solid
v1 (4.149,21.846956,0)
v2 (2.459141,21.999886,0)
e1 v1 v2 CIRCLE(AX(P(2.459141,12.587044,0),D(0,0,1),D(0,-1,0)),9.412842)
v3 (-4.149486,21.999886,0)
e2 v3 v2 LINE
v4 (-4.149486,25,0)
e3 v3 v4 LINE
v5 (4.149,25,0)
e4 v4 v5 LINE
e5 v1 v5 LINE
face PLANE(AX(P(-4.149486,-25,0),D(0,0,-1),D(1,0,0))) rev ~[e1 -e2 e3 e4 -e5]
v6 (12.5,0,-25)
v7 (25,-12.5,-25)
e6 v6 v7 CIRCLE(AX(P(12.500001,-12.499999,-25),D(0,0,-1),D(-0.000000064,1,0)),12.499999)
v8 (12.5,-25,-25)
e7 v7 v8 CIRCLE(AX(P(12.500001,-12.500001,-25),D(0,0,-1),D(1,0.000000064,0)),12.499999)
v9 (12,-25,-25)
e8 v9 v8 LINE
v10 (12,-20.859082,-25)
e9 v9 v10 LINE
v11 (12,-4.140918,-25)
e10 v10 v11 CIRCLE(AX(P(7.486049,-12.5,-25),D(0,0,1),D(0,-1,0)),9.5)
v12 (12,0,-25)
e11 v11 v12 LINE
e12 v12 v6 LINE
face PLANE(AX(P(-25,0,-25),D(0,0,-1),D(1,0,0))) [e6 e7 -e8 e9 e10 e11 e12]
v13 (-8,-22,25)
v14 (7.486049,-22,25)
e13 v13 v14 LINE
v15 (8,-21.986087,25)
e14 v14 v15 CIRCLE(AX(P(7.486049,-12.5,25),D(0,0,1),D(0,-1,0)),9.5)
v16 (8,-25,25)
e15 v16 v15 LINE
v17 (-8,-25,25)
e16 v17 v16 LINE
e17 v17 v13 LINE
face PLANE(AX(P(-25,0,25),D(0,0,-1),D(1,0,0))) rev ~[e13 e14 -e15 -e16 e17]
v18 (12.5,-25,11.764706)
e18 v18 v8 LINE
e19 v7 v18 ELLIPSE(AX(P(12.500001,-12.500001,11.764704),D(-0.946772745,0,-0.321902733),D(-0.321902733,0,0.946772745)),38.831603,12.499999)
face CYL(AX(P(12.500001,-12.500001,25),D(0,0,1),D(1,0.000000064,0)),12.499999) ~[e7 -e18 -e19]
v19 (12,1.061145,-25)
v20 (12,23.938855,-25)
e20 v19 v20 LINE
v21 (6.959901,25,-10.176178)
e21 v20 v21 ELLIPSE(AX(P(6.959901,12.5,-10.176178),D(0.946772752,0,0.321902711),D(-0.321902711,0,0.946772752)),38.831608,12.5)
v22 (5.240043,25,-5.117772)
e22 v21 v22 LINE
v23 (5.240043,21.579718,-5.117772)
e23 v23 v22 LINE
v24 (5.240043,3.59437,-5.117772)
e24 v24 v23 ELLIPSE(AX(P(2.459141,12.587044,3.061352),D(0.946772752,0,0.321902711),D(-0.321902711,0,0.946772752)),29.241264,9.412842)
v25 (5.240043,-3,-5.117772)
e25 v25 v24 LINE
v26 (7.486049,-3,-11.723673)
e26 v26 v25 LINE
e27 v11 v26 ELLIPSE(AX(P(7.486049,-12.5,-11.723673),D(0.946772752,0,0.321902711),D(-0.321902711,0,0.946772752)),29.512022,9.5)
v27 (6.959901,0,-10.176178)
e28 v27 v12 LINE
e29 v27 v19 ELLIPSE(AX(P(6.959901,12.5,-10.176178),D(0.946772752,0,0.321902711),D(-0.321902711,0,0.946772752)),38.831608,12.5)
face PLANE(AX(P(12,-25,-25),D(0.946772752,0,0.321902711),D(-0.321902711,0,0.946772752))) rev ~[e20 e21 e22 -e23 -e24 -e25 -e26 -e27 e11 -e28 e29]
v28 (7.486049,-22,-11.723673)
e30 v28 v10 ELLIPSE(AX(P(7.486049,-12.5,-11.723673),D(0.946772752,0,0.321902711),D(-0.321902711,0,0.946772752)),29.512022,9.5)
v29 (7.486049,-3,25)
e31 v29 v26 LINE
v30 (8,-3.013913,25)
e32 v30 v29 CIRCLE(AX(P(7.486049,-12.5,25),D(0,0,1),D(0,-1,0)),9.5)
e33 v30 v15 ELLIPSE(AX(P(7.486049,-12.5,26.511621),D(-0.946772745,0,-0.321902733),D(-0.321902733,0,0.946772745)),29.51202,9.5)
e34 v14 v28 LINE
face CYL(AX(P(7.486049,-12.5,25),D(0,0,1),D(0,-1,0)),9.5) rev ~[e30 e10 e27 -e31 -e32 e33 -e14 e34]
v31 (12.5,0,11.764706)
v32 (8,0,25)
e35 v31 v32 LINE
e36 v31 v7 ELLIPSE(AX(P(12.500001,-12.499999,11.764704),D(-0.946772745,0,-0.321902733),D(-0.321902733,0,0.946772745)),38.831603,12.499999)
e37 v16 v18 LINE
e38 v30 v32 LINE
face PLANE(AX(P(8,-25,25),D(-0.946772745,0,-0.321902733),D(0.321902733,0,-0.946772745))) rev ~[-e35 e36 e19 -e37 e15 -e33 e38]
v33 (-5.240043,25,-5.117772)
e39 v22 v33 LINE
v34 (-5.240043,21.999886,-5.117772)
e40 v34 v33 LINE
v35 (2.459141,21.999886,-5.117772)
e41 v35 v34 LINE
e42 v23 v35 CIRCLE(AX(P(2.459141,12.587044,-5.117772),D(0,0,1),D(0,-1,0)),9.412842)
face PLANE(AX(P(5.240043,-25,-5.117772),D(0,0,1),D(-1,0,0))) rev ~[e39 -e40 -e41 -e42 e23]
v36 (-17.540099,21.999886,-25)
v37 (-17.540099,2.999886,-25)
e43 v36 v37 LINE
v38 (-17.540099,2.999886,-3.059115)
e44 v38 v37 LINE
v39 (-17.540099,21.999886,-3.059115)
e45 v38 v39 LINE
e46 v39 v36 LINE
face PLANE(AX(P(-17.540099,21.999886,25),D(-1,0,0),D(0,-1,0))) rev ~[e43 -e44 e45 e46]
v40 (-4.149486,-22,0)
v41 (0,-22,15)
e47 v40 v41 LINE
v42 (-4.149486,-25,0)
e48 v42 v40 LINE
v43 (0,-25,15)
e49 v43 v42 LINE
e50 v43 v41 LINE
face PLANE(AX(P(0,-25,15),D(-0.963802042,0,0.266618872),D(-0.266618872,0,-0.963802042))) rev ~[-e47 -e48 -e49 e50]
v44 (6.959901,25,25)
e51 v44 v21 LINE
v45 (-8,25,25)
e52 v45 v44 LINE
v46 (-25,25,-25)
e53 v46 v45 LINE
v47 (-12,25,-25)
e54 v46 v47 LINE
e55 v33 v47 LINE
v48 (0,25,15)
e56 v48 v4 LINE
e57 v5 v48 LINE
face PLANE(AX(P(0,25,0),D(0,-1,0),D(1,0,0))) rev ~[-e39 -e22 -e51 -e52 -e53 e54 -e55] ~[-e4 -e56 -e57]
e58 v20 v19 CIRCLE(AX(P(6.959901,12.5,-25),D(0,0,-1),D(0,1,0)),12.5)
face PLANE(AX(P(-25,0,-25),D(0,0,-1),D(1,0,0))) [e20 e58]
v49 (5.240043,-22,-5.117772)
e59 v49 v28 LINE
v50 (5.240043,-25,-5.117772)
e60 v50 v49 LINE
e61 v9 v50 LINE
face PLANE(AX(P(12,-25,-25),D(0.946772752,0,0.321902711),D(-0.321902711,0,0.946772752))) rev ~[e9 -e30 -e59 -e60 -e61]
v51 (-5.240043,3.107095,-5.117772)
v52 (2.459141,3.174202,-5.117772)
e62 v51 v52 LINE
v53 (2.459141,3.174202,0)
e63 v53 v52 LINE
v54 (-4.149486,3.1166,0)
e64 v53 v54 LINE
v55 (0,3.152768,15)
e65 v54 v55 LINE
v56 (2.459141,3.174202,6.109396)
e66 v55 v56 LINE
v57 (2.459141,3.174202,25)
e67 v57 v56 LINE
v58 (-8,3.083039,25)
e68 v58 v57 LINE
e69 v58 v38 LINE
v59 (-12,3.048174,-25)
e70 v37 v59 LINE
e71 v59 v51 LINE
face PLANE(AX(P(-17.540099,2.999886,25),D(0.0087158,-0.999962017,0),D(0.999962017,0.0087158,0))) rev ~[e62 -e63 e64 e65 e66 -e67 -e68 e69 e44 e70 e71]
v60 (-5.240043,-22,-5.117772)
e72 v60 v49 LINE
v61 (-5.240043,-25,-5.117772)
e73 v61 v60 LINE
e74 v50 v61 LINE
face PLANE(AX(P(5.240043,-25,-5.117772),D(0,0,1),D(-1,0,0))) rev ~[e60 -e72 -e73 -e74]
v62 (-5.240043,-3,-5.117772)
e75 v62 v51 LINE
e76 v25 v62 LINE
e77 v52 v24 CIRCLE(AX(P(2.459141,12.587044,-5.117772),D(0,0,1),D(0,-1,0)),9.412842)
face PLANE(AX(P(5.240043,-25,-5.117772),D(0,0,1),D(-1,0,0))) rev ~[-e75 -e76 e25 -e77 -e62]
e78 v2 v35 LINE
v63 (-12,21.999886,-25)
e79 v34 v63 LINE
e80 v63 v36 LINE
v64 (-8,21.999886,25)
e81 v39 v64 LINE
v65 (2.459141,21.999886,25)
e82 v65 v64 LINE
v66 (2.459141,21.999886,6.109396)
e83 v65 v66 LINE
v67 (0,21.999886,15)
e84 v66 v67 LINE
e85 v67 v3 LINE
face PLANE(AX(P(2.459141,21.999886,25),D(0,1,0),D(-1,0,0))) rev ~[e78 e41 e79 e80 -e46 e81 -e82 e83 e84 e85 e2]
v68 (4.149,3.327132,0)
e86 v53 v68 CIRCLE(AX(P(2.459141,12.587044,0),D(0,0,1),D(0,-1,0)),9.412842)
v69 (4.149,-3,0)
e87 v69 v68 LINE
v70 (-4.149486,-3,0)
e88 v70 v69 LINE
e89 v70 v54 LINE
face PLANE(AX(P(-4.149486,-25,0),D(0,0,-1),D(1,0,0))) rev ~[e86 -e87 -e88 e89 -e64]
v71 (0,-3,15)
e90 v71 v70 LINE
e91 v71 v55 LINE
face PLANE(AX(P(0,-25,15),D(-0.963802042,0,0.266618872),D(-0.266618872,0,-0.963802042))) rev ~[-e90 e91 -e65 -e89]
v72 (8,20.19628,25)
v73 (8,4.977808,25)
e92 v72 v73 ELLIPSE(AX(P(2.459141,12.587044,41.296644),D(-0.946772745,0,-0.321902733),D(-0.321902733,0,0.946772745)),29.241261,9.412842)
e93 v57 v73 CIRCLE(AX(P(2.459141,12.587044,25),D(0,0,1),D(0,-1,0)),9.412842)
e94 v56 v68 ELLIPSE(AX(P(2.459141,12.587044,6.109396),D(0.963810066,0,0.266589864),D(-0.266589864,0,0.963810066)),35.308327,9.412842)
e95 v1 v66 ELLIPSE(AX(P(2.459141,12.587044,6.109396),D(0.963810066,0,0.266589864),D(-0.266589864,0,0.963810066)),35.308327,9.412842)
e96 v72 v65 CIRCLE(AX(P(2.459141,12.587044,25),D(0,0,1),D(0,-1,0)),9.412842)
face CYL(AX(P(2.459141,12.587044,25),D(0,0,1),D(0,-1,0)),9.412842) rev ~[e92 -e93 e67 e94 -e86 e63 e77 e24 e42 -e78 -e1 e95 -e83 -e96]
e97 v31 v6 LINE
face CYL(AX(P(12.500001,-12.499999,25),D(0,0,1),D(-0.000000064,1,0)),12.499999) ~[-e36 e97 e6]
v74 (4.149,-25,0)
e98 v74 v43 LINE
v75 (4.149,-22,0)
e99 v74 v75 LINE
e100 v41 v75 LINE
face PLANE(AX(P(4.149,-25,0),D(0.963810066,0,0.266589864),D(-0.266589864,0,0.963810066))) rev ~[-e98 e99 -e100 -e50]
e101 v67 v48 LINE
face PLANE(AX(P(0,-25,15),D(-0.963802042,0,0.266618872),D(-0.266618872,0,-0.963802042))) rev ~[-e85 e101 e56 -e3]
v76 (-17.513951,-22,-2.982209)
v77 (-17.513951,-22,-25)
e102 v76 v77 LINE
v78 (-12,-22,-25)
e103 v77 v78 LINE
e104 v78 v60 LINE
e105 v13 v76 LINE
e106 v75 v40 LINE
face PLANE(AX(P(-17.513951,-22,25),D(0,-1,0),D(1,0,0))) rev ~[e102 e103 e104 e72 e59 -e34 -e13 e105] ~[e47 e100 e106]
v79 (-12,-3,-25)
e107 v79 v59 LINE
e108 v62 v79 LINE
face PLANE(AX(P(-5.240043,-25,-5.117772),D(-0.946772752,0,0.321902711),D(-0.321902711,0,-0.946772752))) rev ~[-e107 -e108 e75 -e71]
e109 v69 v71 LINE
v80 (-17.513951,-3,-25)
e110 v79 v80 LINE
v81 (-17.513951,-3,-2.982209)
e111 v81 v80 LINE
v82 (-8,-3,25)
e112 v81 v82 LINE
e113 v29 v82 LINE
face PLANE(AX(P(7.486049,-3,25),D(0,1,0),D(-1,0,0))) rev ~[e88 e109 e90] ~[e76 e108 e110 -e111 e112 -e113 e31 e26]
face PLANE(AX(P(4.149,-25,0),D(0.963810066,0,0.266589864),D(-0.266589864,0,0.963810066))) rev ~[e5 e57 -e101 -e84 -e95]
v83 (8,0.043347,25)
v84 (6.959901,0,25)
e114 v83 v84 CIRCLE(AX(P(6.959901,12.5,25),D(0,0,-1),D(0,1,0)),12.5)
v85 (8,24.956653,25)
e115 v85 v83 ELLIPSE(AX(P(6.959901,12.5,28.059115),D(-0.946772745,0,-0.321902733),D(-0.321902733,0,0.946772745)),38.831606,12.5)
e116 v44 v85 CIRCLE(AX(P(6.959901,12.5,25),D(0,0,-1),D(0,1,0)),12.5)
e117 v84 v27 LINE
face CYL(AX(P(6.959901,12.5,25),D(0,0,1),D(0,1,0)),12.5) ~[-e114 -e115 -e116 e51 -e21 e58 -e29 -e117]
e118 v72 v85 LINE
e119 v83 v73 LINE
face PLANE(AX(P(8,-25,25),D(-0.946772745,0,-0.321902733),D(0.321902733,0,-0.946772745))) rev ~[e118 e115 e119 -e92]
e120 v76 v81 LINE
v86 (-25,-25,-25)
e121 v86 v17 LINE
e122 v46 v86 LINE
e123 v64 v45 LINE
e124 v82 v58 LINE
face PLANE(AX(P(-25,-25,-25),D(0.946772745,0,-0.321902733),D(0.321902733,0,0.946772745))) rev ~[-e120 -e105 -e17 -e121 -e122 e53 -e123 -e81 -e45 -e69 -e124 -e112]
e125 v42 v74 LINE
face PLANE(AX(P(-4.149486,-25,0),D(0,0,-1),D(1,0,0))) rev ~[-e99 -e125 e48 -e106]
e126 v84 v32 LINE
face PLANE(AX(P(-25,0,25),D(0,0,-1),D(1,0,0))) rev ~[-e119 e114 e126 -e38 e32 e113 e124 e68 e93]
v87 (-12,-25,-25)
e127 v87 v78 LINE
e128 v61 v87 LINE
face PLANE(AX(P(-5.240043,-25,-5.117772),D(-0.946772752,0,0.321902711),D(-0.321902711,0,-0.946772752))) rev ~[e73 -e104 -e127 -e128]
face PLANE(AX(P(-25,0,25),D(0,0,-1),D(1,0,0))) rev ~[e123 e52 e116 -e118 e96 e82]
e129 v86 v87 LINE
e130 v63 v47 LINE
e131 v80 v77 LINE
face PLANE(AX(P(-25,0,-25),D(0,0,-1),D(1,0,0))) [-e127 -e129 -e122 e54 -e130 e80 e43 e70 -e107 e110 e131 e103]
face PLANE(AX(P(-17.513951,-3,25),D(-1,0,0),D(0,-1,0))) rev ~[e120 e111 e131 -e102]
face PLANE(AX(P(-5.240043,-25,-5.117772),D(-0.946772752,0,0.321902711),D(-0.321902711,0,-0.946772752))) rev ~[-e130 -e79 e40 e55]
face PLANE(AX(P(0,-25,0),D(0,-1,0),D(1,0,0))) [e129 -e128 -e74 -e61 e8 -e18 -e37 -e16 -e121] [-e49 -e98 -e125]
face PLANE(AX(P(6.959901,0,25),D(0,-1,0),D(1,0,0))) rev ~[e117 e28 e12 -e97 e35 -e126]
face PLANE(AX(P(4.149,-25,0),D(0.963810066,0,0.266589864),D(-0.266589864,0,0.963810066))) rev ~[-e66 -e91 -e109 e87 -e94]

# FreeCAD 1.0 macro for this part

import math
import FreeCAD as App
import Part
import Sketcher

V = App.Vector
Q = App.Units.Quantity

doc = App.newDocument("Part")
body = doc.addObject("PartDesign::Body", "Body")

sketch1 = body.newObject("Sketcher::SketchObject", "Sketch")
sketch1.AttachmentSupport = (doc.getObject("XZ_Plane"), [""])
sketch1.MapMode = "FlatFace"
sketch1.addGeometry([
    Part.LineSegment(V(-25, 25, 0), V(-25, -25, 0)),
    Part.LineSegment(V(-25, -25, 0), V(25, -25, 0)),
    Part.LineSegment(V(25, -25, 0), V(25, 25, 0)),
    Part.LineSegment(V(25, 25, 0), V(-25, 25, 0)),
], False)
sketch1.addConstraint([
    Sketcher.Constraint("Coincident", 0, 2, 1, 1),
    Sketcher.Constraint("Coincident", 1, 2, 2, 1),
    Sketcher.Constraint("Coincident", 2, 2, 3, 1),
    Sketcher.Constraint("Coincident", 3, 2, 0, 1),
    Sketcher.Constraint("Vertical", 0),
    Sketcher.Constraint("Horizontal", 1),
    Sketcher.Constraint("Vertical", 2),
    Sketcher.Constraint("Horizontal", 3),
    Sketcher.Constraint("Symmetric", 0, 2, 2, 2, -1, 1),
    Sketcher.Constraint("Equal", 3, 0),
    Sketcher.Constraint("DistanceX", 1, 1, 1, 2, Q("50 mm")),
])
pad1 = body.newObject("PartDesign::Pad", "Pad")
pad1.Profile = sketch1
pad1.Length = 50
pad1.Midplane = True

sketch2 = body.newObject("Sketcher::SketchObject", "Sketch001")
sketch2.AttachmentSupport = (doc.getObject("XZ_Plane"), [""])
sketch2.MapMode = "FlatFace"
sketch2.AttachmentOffset = App.Placement(V(0, 0, 25), App.Rotation())
sketch2.addGeometry([
    Part.LineSegment(V(-8, 25, 0), V(-25, 25, 0)),
    Part.LineSegment(V(-25, 25, 0), V(-25, -25, 0)),
    Part.LineSegment(V(-25, -25, 0), V(-8, 25, 0)),
    Part.LineSegment(V(4, 0, 0), V(0, 15, 0)),
    Part.LineSegment(V(0, 15, 0), V(-4, 0, 0)),
    Part.LineSegment(V(-4, 0, 0), V(4, 0, 0)),
    Part.LineSegment(V(8, 25, 0), V(25, -25, 0)),
    Part.LineSegment(V(25, -25, 0), V(25, 25, 0)),
    Part.LineSegment(V(25, 25, 0), V(8, 25, 0)),
    Part.LineSegment(V(-5, -5, 0), V(-12, -25, 0)),
    Part.LineSegment(V(-12, -25, 0), V(12, -25, 0)),
    Part.LineSegment(V(12, -25, 0), V(5, -5, 0)),
    Part.LineSegment(V(5, -5, 0), V(-5, -5, 0)),
], False)
sketch2.addConstraint([
    Sketcher.Constraint("Coincident", 0, 2, 1, 1),
    Sketcher.Constraint("Coincident", 1, 2, 2, 1),
    Sketcher.Constraint("Coincident", 2, 2, 0, 1),
    Sketcher.Constraint("Coincident", 3, 2, 4, 1),
    Sketcher.Constraint("Coincident", 4, 2, 5, 1),
    Sketcher.Constraint("Coincident", 5, 2, 3, 1),
    Sketcher.Constraint("Coincident", 6, 2, 7, 1),
    Sketcher.Constraint("Coincident", 7, 2, 8, 1),
    Sketcher.Constraint("Coincident", 8, 2, 6, 1),
    Sketcher.Constraint("Coincident", 9, 2, 10, 1),
    Sketcher.Constraint("Coincident", 10, 2, 11, 1),
    Sketcher.Constraint("Coincident", 11, 2, 12, 1),
    Sketcher.Constraint("Coincident", 12, 2, 9, 1),
    Sketcher.Constraint("Horizontal", 0),
    Sketcher.Constraint("Vertical", 1),
    Sketcher.Constraint("Horizontal", 5),
    Sketcher.Constraint("Vertical", 7),
    Sketcher.Constraint("Horizontal", 8),
    Sketcher.Constraint("Horizontal", 10),
    Sketcher.Constraint("Horizontal", 12),
    Sketcher.Constraint("Symmetric", 0, 2, 6, 2, -1, 1),
    Sketcher.Constraint("Symmetric", 2, 2, 8, 2, -2),
    Sketcher.Constraint("PointOnObject", 3, 2, -2),
    Sketcher.Constraint("PointOnObject", 4, 2, -1),
    Sketcher.Constraint("Parallel", 2, 9),
    Sketcher.Constraint("Parallel", 6, 11),
    Sketcher.Constraint("Horizontal", 1, 2, 6, 2),
    Sketcher.Constraint("Horizontal", 6, 2, 9, 2),
    Sketcher.Constraint("DistanceX", 0, 2, 0, 1, Q("17 mm")),
    Sketcher.Constraint("DistanceX", 10, 1, 10, 2, Q("24 mm")),
    Sketcher.Constraint("DistanceY", 1, 2, 1, 1, Q("50 mm")),
    Sketcher.Constraint("Distance", 9, Q("21 mm")),
    Sketcher.Constraint("DistanceX", 0, 2, -1, 1, Q("25 mm")),
    Sketcher.Constraint("DistanceY", -1, 1, 3, 2, Q("15 mm")),
    Sketcher.Constraint("DistanceX", 9, 2, -1, 1, Q("12 mm")),
    Sketcher.Constraint("DistanceX", -1, 1, 5, 2, Q("4.149 mm")),
    Sketcher.Constraint("Distance", 4, Q("15.563362 mm")),
])
pocket1 = body.newObject("PartDesign::Pocket", "Pocket")
pocket1.Profile = sketch2
pocket1.Length = 50

sketch3 = body.newObject("Sketcher::SketchObject", "Sketch002")
sketch3.AttachmentSupport = (doc.getObject("XY_Plane"), [""])
sketch3.MapMode = "FlatFace"
sketch3.AttachmentOffset = App.Placement(V(0, 0, 25), App.Rotation())
sketch3.addGeometry([
    Part.LineSegment(V(25, 25, 0), V(7, 25, 0)),
    Part.ArcOfCircle(Part.Circle(V(7, 12, 0), V(0, 0, 1), 12), math.radians(-90), math.radians(90)),
    Part.LineSegment(V(7, 0, 0), V(12, 0, 0)),
    Part.ArcOfCircle(Part.Circle(V(13, -12, 0), V(0, 0, 1), 12), math.radians(0), math.radians(90)),
    Part.LineSegment(V(25, -12, 0), V(25, 25, 0)),
    Part.ArcOfCircle(Part.Circle(V(13, -13, 0), V(0, 0, 1), 12), math.radians(-90), math.radians(0)),
    Part.LineSegment(V(12, -25, 0), V(25, -25, 0)),
    Part.LineSegment(V(25, -25, 0), V(25, -12, 0)),
    Part.LineSegment(V(7, -3, 0), V(-18, -3, 0)),
    Part.LineSegment(V(-18, -3, 0), V(-18, -22, 0)),
    Part.LineSegment(V(-18, -22, 0), V(7, -22, 0)),
    Part.ArcOfCircle(Part.Circle(V(7, -12, 0), V(0, 0, 1), 10), math.radians(-90), math.radians(90)),
    Part.LineSegment(V(2, 22, 0), V(-18, 22, 0)),
    Part.LineSegment(V(-18, 22, 0), V(-18, 3, 0)),
    Part.LineSegment(V(-18, 3, 0), V(2, 3, 0)),
    Part.ArcOfCircle(Part.Circle(V(2, 13, 0), V(0, 0, 1), 9), math.radians(-90), math.radians(90)),
], False)
sketch3.addConstraint([
    Sketcher.Constraint("Tangent", 0, 2, 1, 2),
    Sketcher.Constraint("Tangent", 1, 1, 2, 1),
    Sketcher.Constraint("Tangent", 2, 2, 3, 2),
    Sketcher.Constraint("Tangent", 3, 1, 4, 1),
    Sketcher.Constraint("Coincident", 4, 2, 0, 1),
    Sketcher.Constraint("Tangent", 5, 1, 6, 1),
    Sketcher.Constraint("Coincident", 6, 2, 7, 1),
    Sketcher.Constraint("Tangent", 7, 2, 5, 2),
    Sketcher.Constraint("Coincident", 8, 2, 9, 1),
    Sketcher.Constraint("Coincident", 9, 2, 10, 1),
    Sketcher.Constraint("Tangent", 10, 2, 11, 1),
    Sketcher.Constraint("Tangent", 11, 2, 8, 1),
    Sketcher.Constraint("Coincident", 12, 2, 13, 1),
    Sketcher.Constraint("Coincident", 13, 2, 14, 1),
    Sketcher.Constraint("Coincident", 14, 2, 15, 1),
    Sketcher.Constraint("Tangent", 15, 2, 12, 1),
    Sketcher.Constraint("Horizontal", 0),
    Sketcher.Constraint("Horizontal", 2),
    Sketcher.Constraint("Vertical", 4),
    Sketcher.Constraint("Horizontal", 6),
    Sketcher.Constraint("Vertical", 7),
    Sketcher.Constraint("Horizontal", 8),
    Sketcher.Constraint("Vertical", 9),
    Sketcher.Constraint("Horizontal", 10),
    Sketcher.Constraint("Horizontal", 12),
    Sketcher.Constraint("Vertical", 13),
    Sketcher.Constraint("Coincident", 5, 3, 3, 3),
    Sketcher.Constraint("Equal", 1, 3),
    Sketcher.Constraint("Equal", 3, 5),
    Sketcher.Constraint("PointOnObject", 1, 1, -1),
    Sketcher.Constraint("Horizontal", 5, 3, 11, 3),
    Sketcher.Constraint("Vertical", 15, 3, 14, 2),
    Sketcher.Constraint("Equal", 9, 13),
    Sketcher.Constraint("Radius", 1, Q("12.5 mm")),
    Sketcher.Constraint("Radius", 11, Q("9.5 mm")),
    Sketcher.Constraint("DistanceX", 8, 2, 8, 1, Q("25 mm")),
    Sketcher.Constraint("Distance", 14, Q("20 mm")),
    Sketcher.Constraint("DistanceX", -1, 1, 3, 1, Q("25 mm")),
    Sketcher.Constraint("DistanceX", 12, 2, 0, 2, Q("24.5 mm")),
    Sketcher.Constraint("DistanceX", 0, 2, 0, 1, Q("18.040099 mm")),
    Sketcher.Constraint("Radius", 15, Q("9.412842 mm")),
    Sketcher.Constraint("DistanceX", -1, 1, 11, 3, Q("7.486049 mm")),
    Sketcher.Constraint("DistanceY", -1, 1, 15, 3, Q("12.587044 mm")),
])
pocket2 = body.newObject("PartDesign::Pocket", "Pocket001")
pocket2.Profile = sketch3
pocket2.Length = 50

doc.recompute()
